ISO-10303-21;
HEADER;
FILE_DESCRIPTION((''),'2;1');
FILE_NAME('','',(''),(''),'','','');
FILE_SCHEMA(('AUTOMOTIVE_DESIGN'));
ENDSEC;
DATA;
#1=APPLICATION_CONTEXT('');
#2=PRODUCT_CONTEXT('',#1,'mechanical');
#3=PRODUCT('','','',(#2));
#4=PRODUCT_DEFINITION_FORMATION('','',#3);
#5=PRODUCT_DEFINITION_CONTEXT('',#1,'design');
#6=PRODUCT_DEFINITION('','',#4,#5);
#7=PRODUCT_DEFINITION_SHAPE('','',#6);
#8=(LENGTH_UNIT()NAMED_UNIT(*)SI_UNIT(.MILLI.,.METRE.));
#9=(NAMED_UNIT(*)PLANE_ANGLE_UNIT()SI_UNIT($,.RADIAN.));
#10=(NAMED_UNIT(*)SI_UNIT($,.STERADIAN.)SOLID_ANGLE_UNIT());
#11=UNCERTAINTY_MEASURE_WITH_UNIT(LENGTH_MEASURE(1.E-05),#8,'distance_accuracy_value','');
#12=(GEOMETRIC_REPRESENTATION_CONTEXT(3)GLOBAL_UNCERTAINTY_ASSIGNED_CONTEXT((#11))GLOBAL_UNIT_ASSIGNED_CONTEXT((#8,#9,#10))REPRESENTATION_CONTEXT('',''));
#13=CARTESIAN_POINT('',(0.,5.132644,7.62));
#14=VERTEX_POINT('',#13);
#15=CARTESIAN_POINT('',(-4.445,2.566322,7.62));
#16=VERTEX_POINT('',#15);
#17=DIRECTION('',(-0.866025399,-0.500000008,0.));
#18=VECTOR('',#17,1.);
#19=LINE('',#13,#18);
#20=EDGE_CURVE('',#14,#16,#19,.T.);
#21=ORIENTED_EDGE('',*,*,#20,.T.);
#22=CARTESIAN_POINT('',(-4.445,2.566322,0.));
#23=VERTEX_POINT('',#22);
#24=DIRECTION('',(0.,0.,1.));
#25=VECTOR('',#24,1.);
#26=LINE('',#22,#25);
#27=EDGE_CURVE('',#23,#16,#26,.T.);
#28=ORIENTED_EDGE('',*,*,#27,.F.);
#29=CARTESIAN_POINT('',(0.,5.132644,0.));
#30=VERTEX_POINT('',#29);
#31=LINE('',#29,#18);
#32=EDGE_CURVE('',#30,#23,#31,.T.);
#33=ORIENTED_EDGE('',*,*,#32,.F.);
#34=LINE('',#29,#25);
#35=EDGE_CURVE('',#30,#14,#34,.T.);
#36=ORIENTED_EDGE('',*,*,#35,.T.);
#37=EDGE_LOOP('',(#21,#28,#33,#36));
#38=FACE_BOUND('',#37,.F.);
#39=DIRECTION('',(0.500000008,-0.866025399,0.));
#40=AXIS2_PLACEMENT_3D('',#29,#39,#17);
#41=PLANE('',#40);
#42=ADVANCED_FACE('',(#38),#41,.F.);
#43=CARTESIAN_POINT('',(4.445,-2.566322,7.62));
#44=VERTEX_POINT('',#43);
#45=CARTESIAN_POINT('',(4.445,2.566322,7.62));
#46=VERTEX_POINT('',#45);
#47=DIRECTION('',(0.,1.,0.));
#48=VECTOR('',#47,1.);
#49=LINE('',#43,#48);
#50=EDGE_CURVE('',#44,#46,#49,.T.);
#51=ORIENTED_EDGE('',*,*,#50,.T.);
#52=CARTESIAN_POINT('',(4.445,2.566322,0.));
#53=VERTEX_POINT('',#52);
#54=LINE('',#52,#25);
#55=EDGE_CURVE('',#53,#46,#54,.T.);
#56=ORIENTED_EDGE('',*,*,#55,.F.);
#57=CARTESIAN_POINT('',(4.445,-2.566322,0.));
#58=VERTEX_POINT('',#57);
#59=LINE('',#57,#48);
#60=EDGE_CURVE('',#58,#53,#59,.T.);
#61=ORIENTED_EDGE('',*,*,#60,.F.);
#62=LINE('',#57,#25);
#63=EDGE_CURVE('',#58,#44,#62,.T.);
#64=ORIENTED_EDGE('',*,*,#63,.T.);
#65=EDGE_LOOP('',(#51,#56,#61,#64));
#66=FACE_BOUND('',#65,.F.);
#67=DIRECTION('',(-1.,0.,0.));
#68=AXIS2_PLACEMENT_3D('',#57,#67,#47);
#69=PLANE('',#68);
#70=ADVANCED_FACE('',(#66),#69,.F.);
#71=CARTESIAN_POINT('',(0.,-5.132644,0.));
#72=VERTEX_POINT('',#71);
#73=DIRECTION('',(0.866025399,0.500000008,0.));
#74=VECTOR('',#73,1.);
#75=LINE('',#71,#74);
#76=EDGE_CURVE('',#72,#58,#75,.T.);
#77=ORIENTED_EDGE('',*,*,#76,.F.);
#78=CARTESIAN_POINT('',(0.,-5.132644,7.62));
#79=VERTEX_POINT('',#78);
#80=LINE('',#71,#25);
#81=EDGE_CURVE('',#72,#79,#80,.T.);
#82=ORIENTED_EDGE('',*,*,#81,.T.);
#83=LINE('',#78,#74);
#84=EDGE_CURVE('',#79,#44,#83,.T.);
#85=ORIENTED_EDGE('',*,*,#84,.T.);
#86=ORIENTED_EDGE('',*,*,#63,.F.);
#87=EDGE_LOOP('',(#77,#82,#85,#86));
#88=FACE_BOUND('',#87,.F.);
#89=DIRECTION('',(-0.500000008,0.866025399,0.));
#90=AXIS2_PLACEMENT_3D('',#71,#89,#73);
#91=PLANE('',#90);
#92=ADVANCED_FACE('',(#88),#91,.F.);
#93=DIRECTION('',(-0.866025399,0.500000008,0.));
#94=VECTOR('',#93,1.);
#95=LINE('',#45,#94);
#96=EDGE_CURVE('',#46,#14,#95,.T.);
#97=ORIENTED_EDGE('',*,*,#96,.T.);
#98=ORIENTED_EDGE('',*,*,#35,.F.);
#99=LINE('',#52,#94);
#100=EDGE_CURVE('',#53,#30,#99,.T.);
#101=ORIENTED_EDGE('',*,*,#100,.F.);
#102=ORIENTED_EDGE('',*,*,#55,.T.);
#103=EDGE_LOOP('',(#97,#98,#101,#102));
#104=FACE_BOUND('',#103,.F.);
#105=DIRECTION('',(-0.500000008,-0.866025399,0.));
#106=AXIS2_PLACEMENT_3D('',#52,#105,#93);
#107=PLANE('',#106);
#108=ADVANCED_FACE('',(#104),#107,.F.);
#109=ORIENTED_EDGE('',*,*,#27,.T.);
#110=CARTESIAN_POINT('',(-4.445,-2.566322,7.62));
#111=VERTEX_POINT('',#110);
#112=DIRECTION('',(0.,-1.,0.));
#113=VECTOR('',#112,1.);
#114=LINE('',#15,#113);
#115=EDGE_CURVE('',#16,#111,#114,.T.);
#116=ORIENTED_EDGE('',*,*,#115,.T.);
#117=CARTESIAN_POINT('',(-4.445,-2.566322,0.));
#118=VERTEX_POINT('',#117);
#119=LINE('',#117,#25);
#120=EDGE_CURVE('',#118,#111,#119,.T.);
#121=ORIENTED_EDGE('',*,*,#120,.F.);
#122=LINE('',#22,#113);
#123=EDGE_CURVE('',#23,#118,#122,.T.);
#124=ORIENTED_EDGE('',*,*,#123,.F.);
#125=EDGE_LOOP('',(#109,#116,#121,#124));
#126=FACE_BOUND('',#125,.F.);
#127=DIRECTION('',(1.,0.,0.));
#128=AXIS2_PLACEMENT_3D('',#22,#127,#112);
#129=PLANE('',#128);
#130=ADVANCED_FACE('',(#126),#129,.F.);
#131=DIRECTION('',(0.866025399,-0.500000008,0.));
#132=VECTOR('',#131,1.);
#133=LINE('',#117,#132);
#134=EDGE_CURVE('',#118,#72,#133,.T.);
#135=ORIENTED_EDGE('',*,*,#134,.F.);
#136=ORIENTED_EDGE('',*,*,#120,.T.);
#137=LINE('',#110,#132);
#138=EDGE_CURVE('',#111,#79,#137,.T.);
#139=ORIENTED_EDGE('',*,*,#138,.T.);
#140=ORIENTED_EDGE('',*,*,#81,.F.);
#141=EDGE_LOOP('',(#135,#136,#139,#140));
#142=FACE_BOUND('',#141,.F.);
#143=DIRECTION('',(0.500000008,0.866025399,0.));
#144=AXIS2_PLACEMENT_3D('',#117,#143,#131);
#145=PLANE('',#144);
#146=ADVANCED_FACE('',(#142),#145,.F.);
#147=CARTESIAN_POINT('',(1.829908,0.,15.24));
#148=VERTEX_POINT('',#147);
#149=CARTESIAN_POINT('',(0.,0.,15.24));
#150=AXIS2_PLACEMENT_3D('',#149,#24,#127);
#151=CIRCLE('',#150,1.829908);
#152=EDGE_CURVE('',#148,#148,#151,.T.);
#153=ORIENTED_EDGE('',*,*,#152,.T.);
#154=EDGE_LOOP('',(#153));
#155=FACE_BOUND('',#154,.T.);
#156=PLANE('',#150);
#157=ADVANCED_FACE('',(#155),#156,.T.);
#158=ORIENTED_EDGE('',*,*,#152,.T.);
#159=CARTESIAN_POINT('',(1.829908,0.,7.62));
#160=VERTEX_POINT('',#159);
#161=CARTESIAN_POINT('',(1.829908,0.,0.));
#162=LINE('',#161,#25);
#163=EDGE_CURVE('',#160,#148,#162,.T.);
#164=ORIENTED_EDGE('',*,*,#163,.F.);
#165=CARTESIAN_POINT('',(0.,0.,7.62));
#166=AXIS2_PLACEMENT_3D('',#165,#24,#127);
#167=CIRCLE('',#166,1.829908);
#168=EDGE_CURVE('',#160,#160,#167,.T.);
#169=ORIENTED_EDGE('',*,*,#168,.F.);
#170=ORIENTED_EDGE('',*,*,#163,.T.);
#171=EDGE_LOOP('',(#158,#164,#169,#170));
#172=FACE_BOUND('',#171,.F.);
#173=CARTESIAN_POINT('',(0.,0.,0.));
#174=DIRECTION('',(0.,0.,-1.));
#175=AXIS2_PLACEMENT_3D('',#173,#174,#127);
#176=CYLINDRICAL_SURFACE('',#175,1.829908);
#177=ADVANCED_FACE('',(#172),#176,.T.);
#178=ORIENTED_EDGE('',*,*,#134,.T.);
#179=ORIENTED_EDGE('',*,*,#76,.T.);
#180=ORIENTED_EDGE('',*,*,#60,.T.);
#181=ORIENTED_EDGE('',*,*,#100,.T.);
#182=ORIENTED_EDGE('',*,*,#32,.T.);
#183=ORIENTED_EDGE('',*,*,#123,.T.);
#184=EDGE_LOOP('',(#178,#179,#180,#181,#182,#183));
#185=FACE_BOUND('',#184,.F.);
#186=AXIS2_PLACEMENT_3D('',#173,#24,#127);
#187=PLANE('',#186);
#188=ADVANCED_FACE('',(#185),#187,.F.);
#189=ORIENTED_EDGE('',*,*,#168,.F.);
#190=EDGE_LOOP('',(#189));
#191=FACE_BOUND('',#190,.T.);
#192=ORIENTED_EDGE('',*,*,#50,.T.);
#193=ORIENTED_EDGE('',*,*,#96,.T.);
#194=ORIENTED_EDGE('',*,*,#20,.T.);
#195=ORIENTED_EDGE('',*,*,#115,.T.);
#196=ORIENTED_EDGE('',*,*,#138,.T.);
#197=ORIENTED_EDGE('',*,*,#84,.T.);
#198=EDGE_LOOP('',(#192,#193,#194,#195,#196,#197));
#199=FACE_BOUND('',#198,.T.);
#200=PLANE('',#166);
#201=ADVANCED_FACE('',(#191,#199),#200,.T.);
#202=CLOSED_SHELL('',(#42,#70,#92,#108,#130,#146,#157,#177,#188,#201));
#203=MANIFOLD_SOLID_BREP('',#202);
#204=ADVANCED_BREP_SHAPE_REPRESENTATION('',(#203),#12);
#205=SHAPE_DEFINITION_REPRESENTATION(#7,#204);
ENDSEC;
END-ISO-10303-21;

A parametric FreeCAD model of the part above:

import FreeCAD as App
import Part
import Sketcher
from FreeCAD import Vector
Q = App.Units.Quantity

doc = App.newDocument("Part")
body = doc.addObject("PartDesign::Body", "Body")

sketch1 = body.newObject("Sketcher::SketchObject", "Sketch")
sketch1.AttachmentSupport = (doc.getObject("XY_Plane"), [""])
sketch1.MapMode = "FlatFace"
sketch1.addGeometry([
    Part.LineSegment(Vector(4.4, -2.6, 0), Vector(4.4, 2.6, 0)),
    Part.LineSegment(Vector(4.4, 2.6, 0), Vector(0, 5.1, 0)),
    Part.LineSegment(Vector(0, 5.1, 0), Vector(-4.4, 2.6, 0)),
    Part.LineSegment(Vector(-4.4, 2.6, 0), Vector(-4.4, -2.6, 0)),
    Part.LineSegment(Vector(-4.4, -2.6, 0), Vector(0, -5.1, 0)),
    Part.LineSegment(Vector(0, -5.1, 0), Vector(4.4, -2.6, 0)),
    Part.Circle(Vector(0, 0, 0), Vector(0, 0, 1), 1.8),
], False)
sketch1.addConstraint([
    Sketcher.Constraint("Coincident", 0, 2, 1, 1),
    Sketcher.Constraint("Coincident", 1, 2, 2, 1),
    Sketcher.Constraint("Coincident", 2, 2, 3, 1),
    Sketcher.Constraint("Coincident", 3, 2, 4, 1),
    Sketcher.Constraint("Coincident", 4, 2, 5, 1),
    Sketcher.Constraint("Coincident", 5, 2, 0, 1),
    Sketcher.Constraint("Vertical", 0),
    Sketcher.Constraint("Vertical", 3),
    Sketcher.Constraint("Coincident", 6, 3, -1, 1),
    Sketcher.Constraint("Symmetric", 0, 2, 3, 2, -1, 1),
    Sketcher.Constraint("Symmetric", 1, 2, 4, 2, -1, 1),
    Sketcher.Constraint("PointOnObject", 1, 2, -2),
    Sketcher.Constraint("Parallel", 2, 5),
    Sketcher.Constraint("Horizontal", 0, 2, 2, 2),
    Sketcher.Constraint("Angle", 1, Q("149.999999 deg")),
    Sketcher.Constraint("DistanceX", 2, 2, 0, 2, Q("0.35 in")),
    Sketcher.Constraint("Diameter", 6, 3.659816),
    Sketcher.Constraint("DistanceY", 0, 1, 0, 2, 5.132644),
])
pad1 = body.newObject("PartDesign::Pad", "Pad")
pad1.Profile = sketch1
pad1.Length = Q("0.3 in")

sketch2 = body.newObject("Sketcher::SketchObject", "Sketch001")
sketch2.AttachmentSupport = (doc.getObject("XY_Plane"), [""])
sketch2.MapMode = "FlatFace"
sketch2.addGeometry(Part.Circle(Vector(0, 0, 0), Vector(0, 0, 1), 1.8), False)
sketch2.addConstraint([
    Sketcher.Constraint("Coincident", 0, 3, -1, 1),
    Sketcher.Constraint("Diameter", 0, 3.659816),
])
pad2 = body.newObject("PartDesign::Pad", "Pad001")
pad2.Profile = sketch2
pad2.Length = Q("0.6 in")

doc.recompute()
